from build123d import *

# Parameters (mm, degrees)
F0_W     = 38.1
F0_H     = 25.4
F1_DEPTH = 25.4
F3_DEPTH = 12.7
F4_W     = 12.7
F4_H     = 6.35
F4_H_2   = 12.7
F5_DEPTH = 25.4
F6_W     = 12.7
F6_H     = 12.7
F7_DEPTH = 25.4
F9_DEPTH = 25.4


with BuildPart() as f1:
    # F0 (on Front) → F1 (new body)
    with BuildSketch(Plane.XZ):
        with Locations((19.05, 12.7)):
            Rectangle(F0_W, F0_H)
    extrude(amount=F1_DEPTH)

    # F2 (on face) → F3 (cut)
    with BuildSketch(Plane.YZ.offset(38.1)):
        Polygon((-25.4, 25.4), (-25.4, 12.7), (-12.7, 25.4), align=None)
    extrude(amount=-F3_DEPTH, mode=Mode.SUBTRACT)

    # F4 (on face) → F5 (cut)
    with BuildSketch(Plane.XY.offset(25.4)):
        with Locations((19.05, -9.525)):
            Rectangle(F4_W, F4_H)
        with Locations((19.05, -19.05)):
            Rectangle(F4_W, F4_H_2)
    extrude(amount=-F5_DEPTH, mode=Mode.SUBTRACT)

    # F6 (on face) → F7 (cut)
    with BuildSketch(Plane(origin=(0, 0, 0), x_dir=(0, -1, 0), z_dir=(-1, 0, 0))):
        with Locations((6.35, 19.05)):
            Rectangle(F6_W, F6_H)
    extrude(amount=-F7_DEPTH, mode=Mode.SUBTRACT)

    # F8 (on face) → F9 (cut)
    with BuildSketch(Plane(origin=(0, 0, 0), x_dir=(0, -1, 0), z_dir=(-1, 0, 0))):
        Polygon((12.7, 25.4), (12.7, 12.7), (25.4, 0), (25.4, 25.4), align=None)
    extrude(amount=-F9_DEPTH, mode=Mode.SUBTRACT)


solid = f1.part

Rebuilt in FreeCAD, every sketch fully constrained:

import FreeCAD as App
import Part
import Sketcher

V = App.Vector
Q = App.Units.Quantity


def add_polygon(sketch, points):
    """Adds a closed chain of lines whose ends are joined by coincident constraints."""
    first, n = sketch.GeometryCount, len(points)
    for a, b in zip(points, points[1:] + points[:1]):
        sketch.addGeometry(Part.LineSegment(App.Vector(*a, 0), App.Vector(*b, 0)), False)
    for i in range(n):
        sketch.addConstraint(Sketcher.Constraint("Coincident", first + i, 2, first + (i + 1) % n, 1))

doc = App.newDocument("Part")
params = doc.addObject("Spreadsheet::Sheet", "Params")
for row, (alias, value) in enumerate([
    ("sketch1_height", "1 in"),
    ("sketch1_width", "1.5 in"),
    ("pad1_length", "1 in"),
    ("sketch2_width", "0.5 in"),
    ("pocket1_length", "0.5 in"),
    ("sketch3_width", "0.5 in"),
    ("sketch3_height", "0.75 in"),
    ("pocket2_length", "1 in"),
    ("sketch4_width", "0.5 in"),
    ("pocket3_length", "1 in"),
    ("sketch5_height", "1 in"),
    ("sketch5_width", "0.5 in"),
    ("pocket4_length", "1 in"),
], start=1):
    params.set(f"A{row}", alias)
    params.set(f"B{row}", "=" + value)
    params.setAlias(f"B{row}", alias)

body = doc.addObject("PartDesign::Body", "Body")

# Sketch on XZ plane
sketch1 = body.newObject("Sketcher::SketchObject", "Sketch")
sketch1.AttachmentSupport = (doc.getObject("XZ_Plane"), [""])
sketch1.MapMode = "FlatFace"
add_polygon(sketch1, [(0, 25), (0, 0), (38, 0), (38, 25)])  # lines 0-3
sketch1.addConstraint([
    Sketcher.Constraint("Vertical", 0),
    Sketcher.Constraint("Horizontal", 1),
    Sketcher.Constraint("Vertical", 2),
    Sketcher.Constraint("Horizontal", 3),
    Sketcher.Constraint("Coincident", 0, 2, -1, 1),
    Sketcher.Constraint("DistanceY", 0, 2, 0, 1, Q("1 in")),
    Sketcher.Constraint("DistanceX", 1, 1, 1, 2, Q("1.5 in")),
])
sketch1.setExpression("Constraints[9]", "Params.sketch1_height")
sketch1.setExpression("Constraints[10]", "Params.sketch1_width")
pad1 = body.newObject("PartDesign::Pad", "Pad")
pad1.Profile = sketch1
pad1.setExpression("Length", "Params.pad1_length")

# Sketch on YZ plane
sketch2 = body.newObject("Sketcher::SketchObject", "Sketch001")
sketch2.AttachmentSupport = (doc.getObject("YZ_Plane"), [""])
sketch2.MapMode = "FlatFace"
sketch2.AttachmentOffset = App.Placement(V(0, 0, 1.5 * 25.4), App.Rotation())
add_polygon(sketch2, [(-25, 25), (-25, 13), (-13, 25)])  # lines 0-2
sketch2.addConstraint([
    Sketcher.Constraint("Vertical", 0),
    Sketcher.Constraint("Horizontal", 2),
    Sketcher.Constraint("Equal", 2, 0),
    Sketcher.Constraint("DistanceX", 2, 2, 2, 1, Q("0.5 in")),
    Sketcher.Constraint("DistanceX", 0, 2, -1, 1, Q("1 in")),
    Sketcher.Constraint("DistanceY", -1, 1, 1, 2, Q("1 in")),
])
sketch2.setExpression("Constraints[6]", "Params.sketch2_width")
pocket1 = body.newObject("PartDesign::Pocket", "Pocket")
pocket1.Profile = sketch2
pocket1.setExpression("Length", "Params.pocket1_length")

# Sketch on XY plane
sketch3 = body.newObject("Sketcher::SketchObject", "Sketch002")
sketch3.AttachmentSupport = (doc.getObject("XY_Plane"), [""])
sketch3.MapMode = "FlatFace"
sketch3.AttachmentOffset = App.Placement(V(0, 0, 1 * 25.4), App.Rotation())
add_polygon(sketch3, [(13, -6), (13, -25), (25, -25), (25, -6)])  # lines 0-3
sketch3.addConstraint([
    Sketcher.Constraint("Vertical", 0),
    Sketcher.Constraint("Horizontal", 1),
    Sketcher.Constraint("Vertical", 2),
    Sketcher.Constraint("Horizontal", 3),
    Sketcher.Constraint("DistanceX", 1, 1, 1, 2, Q("0.5 in")),
    Sketcher.Constraint("DistanceY", 0, 2, -1, 1, Q("1 in")),
    Sketcher.Constraint("DistanceX", -1, 1, 1, 2, Q("1 in")),
    Sketcher.Constraint("DistanceY", 0, 2, 0, 1, Q("0.75 in")),
])
sketch3.setExpression("Constraints[8]", "Params.sketch3_width")
sketch3.setExpression("Constraints[11]", "Params.sketch3_height")
pocket2 = body.newObject("PartDesign::Pocket", "Pocket001")
pocket2.Profile = sketch3
pocket2.setExpression("Length", "Params.pocket2_length")

# Sketch on YZ plane
sketch4 = body.newObject("Sketcher::SketchObject", "Sketch003")
sketch4.AttachmentSupport = (doc.getObject("YZ_Plane"), [""])
sketch4.MapMode = "FlatFace"
add_polygon(sketch4, [(0, 25), (0, 13), (-13, 13), (-13, 25)])  # lines 0-3
sketch4.addConstraint([
    Sketcher.Constraint("Vertical", 0),
    Sketcher.Constraint("Horizontal", 1),
    Sketcher.Constraint("Vertical", 2),
    Sketcher.Constraint("Horizontal", 3),
    Sketcher.Constraint("PointOnObject", 0, 2, -2),
    Sketcher.Constraint("Equal", 3, 0),
    Sketcher.Constraint("DistanceX", 1, 2, 1, 1, Q("0.5 in")),
    Sketcher.Constraint("DistanceY", -1, 1, 2, 2, Q("1 in")),
])
sketch4.setExpression("Constraints[10]", "Params.sketch4_width")
pocket3 = body.newObject("PartDesign::Pocket", "Pocket002")
pocket3.Profile = sketch4
pocket3.setExpression("Length", "Params.pocket3_length")
pocket3.Reversed = True

# Sketch on YZ plane
sketch5 = body.newObject("Sketcher::SketchObject", "Sketch004")
sketch5.AttachmentSupport = (doc.getObject("YZ_Plane"), [""])
sketch5.MapMode = "FlatFace"
add_polygon(sketch5, [(-13, 25), (-13, 13), (-25, 0), (-25, 25)])  # lines 0-3
sketch5.addConstraint([
    Sketcher.Constraint("Vertical", 0),
    Sketcher.Constraint("Vertical", 2),
    Sketcher.Constraint("Horizontal", 3),
    Sketcher.Constraint("PointOnObject", 1, 2, -1),
    Sketcher.Constraint("Equal", 3, 0),
    Sketcher.Constraint("DistanceY", 2, 1, 2, 2, Q("1 in")),
    Sketcher.Constraint("DistanceX", 3, 1, 3, 2, Q("0.5 in")),
    Sketcher.Constraint("DistanceX", 1, 2, -1, 1, Q("1 in")),
])
sketch5.setExpression("Constraints[9]", "Params.sketch5_height")
sketch5.setExpression("Constraints[10]", "Params.sketch5_width")
pocket4 = body.newObject("PartDesign::Pocket", "Pocket003")
pocket4.Profile = sketch5
pocket4.setExpression("Length", "Params.pocket4_length")
pocket4.Reversed = True

doc.recompute()
